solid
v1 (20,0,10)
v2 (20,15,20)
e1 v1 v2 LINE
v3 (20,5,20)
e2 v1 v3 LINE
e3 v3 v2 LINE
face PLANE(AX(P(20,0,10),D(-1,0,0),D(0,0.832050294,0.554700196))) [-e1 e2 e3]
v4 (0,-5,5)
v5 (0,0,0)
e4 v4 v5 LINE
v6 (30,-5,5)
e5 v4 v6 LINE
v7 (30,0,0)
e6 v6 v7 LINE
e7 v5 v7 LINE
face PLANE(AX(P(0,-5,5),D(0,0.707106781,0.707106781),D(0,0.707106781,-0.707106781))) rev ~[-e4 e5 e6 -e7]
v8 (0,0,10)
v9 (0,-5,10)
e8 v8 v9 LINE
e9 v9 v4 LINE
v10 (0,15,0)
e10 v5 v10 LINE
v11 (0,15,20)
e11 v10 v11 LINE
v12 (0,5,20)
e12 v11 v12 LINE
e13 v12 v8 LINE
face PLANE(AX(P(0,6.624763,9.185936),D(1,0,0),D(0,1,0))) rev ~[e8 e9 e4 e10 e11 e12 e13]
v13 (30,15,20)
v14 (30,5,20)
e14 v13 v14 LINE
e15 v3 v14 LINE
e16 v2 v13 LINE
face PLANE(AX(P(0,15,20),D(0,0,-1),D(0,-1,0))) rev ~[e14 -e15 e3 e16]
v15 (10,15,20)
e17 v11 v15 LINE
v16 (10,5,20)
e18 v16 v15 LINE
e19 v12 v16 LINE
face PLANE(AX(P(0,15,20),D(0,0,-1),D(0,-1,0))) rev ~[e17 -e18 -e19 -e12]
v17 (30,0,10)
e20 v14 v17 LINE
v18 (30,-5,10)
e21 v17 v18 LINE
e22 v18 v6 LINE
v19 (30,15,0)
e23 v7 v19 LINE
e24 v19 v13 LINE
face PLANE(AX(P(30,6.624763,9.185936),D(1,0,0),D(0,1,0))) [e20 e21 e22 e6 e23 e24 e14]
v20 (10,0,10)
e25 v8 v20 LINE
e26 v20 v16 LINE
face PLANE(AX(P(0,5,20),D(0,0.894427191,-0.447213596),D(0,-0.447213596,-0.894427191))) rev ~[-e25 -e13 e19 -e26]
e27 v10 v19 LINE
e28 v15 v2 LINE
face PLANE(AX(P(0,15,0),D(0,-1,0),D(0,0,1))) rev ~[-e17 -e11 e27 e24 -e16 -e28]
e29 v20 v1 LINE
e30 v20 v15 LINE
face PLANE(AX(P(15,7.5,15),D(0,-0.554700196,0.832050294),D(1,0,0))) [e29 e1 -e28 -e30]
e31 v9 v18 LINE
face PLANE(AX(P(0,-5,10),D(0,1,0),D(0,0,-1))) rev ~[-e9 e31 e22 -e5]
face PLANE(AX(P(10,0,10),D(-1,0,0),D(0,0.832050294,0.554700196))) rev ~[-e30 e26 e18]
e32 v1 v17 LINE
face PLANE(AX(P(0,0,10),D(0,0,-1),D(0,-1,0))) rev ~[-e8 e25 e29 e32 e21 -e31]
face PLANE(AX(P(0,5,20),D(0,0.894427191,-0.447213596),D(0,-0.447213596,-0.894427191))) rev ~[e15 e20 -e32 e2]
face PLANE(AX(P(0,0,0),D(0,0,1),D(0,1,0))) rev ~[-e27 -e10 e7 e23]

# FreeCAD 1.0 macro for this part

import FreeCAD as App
import Part
import Sketcher
from FreeCAD import Vector
Q = App.Units.Quantity


def add_polygon(sketch, points):
    """Adds a closed chain of lines whose ends are joined by coincident constraints."""
    first, n = sketch.GeometryCount, len(points)
    for a, b in zip(points, points[1:] + points[:1]):
        sketch.addGeometry(Part.LineSegment(App.Vector(*a, 0), App.Vector(*b, 0)), False)
    for i in range(n):
        sketch.addConstraint(Sketcher.Constraint("Coincident", first + i, 2, first + (i + 1) % n, 1))

doc = App.newDocument("Part")
body = doc.addObject("PartDesign::Body", "Body")

# Sketch on YZ plane
sketch1 = body.newObject("Sketcher::SketchObject", "Sketch")
sketch1.AttachmentSupport = (doc.getObject("YZ_Plane"), [""])
sketch1.MapMode = "FlatFace"
add_polygon(sketch1, [(-5, 5), (0, 0), (15, 0), (15, 20), (5, 20), (0, 10), (-5, 10)])  # lines 0-6
sketch1.addConstraint([
    Sketcher.Constraint("Horizontal", 1),
    Sketcher.Constraint("Vertical", 2),
    Sketcher.Constraint("Horizontal", 3),
    Sketcher.Constraint("Horizontal", 5),
    Sketcher.Constraint("Vertical", 6),
    Sketcher.Constraint("Coincident", 0, 2, -1, 1),
    Sketcher.Constraint("PointOnObject", 4, 2, -2),
    Sketcher.Constraint("Equal", 5, 6),
    Sketcher.Constraint("DistanceX", 1, 1, 1, 2, Q("15 mm")),
    Sketcher.Constraint("DistanceX", 3, 2, 3, 1, Q("10 mm")),
    Sketcher.Constraint("DistanceX", 5, 2, 5, 1, Q("5 mm")),
    Sketcher.Constraint("DistanceY", 2, 1, 2, 2, Q("20 mm")),
    Sketcher.Constraint("Angle", 0, Q("-45 deg")),
])
pad1 = body.newObject("PartDesign::Pad", "Pad")
pad1.Profile = sketch1
pad1.Length = 30

# Sketch on an angled plane
sketch2 = body.newObject("Sketcher::SketchObject", "Sketch001")
sketch2.Placement = App.Placement(Vector(0, -4.615385, 6.923077), App.Rotation(Vector(1, 0, 0), Vector(0, 0.832050294, 0.554700196), Vector(0, -0.554700196, 0.832050294), "ZXY"))
add_polygon(sketch2, [(10, 23.574758), (10, 5.547002), (20, 5.547002), (20, 23.574758)])  # lines 0-3
sketch2.addConstraint([
    Sketcher.Constraint("Vertical", 0),
    Sketcher.Constraint("Horizontal", 1),
    Sketcher.Constraint("Vertical", 2),
    Sketcher.Constraint("Horizontal", 3),
    Sketcher.Constraint("DistanceX", 1, 1, 1, 2, Q("10 mm")),
    Sketcher.Constraint("DistanceX", -1, 1, 0, 2, Q("10 mm")),
    Sketcher.Constraint("DistanceY", -1, 1, 0, 2, Q("5.547002 mm")),
    Sketcher.Constraint("DistanceY", 0, 2, 0, 1, Q("18.027756 mm")),
])
pocket1 = body.newObject("PartDesign::Pocket", "Pocket")
pocket1.Profile = sketch2
pocket1.Type = "ThroughAll"
pocket1.Reversed = True

doc.recompute()
